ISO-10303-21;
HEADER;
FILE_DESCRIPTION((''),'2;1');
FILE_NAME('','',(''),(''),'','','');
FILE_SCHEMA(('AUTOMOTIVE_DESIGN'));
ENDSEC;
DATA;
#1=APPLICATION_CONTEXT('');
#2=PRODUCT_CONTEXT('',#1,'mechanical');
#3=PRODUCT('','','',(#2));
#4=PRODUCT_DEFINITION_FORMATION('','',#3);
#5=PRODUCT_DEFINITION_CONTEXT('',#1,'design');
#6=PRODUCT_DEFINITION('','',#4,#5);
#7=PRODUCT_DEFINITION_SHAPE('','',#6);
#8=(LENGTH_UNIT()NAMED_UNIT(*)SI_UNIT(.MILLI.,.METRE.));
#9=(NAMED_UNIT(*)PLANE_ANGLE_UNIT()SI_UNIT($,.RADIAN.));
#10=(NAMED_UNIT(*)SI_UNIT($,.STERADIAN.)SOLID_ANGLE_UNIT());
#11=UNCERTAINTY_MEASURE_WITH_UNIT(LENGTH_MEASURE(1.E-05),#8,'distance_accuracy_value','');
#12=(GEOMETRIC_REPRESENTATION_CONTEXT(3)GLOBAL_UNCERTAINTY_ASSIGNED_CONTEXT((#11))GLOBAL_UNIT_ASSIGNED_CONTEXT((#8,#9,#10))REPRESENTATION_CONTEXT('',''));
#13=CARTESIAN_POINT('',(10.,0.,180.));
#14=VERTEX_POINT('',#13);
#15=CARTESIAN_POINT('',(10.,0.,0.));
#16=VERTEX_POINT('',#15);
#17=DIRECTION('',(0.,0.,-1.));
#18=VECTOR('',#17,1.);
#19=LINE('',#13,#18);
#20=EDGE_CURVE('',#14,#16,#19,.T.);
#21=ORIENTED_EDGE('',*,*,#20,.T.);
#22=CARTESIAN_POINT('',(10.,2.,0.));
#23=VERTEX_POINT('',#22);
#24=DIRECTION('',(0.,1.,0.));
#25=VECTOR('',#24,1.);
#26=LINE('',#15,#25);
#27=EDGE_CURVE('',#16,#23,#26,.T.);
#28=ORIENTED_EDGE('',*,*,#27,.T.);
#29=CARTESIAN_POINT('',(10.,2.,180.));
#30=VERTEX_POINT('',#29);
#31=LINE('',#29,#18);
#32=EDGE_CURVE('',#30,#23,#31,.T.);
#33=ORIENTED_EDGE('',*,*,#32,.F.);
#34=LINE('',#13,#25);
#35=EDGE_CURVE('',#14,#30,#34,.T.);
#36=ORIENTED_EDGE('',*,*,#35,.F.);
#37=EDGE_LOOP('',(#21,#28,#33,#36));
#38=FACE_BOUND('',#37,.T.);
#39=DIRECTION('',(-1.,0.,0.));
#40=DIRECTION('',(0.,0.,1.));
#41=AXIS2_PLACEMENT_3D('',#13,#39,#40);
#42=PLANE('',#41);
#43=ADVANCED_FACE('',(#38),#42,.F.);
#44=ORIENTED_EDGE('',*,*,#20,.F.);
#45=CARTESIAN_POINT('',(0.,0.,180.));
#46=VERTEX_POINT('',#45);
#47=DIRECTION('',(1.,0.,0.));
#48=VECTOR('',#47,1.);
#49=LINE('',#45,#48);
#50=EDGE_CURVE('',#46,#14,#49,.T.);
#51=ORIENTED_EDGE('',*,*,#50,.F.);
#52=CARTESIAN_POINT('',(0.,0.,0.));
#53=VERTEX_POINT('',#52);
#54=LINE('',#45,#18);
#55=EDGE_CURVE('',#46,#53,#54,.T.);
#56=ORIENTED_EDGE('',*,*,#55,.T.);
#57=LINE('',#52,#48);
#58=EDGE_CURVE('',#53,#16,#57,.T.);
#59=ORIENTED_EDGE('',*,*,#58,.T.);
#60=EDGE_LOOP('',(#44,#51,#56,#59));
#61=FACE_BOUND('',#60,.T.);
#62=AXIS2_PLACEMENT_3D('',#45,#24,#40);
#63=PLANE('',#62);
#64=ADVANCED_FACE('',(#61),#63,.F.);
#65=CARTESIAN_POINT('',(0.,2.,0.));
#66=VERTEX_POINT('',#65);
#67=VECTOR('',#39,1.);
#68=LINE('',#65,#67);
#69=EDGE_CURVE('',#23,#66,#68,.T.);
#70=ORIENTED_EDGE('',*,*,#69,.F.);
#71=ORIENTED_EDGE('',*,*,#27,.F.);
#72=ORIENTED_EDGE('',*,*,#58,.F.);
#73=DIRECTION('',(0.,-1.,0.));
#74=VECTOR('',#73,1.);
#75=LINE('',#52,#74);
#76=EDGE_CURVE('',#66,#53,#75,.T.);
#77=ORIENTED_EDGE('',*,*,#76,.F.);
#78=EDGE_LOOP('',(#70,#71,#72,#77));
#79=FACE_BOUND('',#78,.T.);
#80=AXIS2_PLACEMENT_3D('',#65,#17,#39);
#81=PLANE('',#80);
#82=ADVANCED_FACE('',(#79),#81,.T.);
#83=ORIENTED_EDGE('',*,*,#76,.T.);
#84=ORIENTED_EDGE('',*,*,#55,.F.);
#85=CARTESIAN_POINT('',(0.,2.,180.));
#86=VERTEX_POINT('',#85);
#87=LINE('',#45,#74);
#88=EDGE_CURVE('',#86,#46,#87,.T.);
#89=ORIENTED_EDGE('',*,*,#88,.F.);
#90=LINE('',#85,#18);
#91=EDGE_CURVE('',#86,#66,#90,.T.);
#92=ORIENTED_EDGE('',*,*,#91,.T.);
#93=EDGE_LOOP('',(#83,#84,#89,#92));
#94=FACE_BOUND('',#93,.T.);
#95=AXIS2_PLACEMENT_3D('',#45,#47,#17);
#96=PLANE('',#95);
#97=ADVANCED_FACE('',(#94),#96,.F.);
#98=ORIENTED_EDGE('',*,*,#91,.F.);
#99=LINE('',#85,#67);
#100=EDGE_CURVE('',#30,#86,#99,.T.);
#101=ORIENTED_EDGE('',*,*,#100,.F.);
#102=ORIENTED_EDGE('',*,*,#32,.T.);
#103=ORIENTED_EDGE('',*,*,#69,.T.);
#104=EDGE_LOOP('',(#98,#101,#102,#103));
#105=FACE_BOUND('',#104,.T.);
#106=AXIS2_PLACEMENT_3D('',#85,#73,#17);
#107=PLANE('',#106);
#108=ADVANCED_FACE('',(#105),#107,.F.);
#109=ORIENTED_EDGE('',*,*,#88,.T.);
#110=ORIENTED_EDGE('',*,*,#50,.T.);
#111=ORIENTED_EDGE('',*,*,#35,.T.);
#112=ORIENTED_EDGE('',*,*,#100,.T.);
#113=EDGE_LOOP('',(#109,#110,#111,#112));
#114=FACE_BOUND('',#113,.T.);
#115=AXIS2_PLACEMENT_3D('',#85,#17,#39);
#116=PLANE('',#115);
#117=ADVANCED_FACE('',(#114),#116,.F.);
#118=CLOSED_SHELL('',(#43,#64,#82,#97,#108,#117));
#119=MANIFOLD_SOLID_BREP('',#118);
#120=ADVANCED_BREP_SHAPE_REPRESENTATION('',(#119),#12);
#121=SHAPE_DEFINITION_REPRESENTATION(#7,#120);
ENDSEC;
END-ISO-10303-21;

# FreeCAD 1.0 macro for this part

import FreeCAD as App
import Part
import Sketcher

doc = App.newDocument("Part")
body = doc.addObject("PartDesign::Body", "Body")

# Sketch on XY plane
sketch1 = body.newObject("Sketcher::SketchObject", "Sketch")
sketch1.AttachmentSupport = (doc.getObject("XY_Plane"), [""])
sketch1.MapMode = "FlatFace"
sketch1.addGeometry([
    Part.LineSegment(App.Vector(0, 2, 0), App.Vector(0, 0, 0)),
    Part.LineSegment(App.Vector(0, 0, 0), App.Vector(10, 0, 0)),
    Part.LineSegment(App.Vector(10, 0, 0), App.Vector(10, 2, 0)),
    Part.LineSegment(App.Vector(10, 2, 0), App.Vector(0, 2, 0)),
], False)
sketch1.addConstraint([
    Sketcher.Constraint("Coincident", 0, 2, 1, 1),
    Sketcher.Constraint("Coincident", 1, 2, 2, 1),
    Sketcher.Constraint("Coincident", 2, 2, 3, 1),
    Sketcher.Constraint("Coincident", 3, 2, 0, 1),
    Sketcher.Constraint("Vertical", 0),
    Sketcher.Constraint("Horizontal", 1),
    Sketcher.Constraint("Vertical", 2),
    Sketcher.Constraint("Horizontal", 3),
    Sketcher.Constraint("Coincident", 0, 2, -1, 1),
    Sketcher.Constraint("DistanceX", 1, 1, 1, 2, 10.0),
    Sketcher.Constraint("DistanceY", 0, 2, 0, 1, 2.0),
])
pad1 = body.newObject("PartDesign::Pad", "Pad")
pad1.Profile = sketch1
pad1.Length = 180

doc.recompute()
